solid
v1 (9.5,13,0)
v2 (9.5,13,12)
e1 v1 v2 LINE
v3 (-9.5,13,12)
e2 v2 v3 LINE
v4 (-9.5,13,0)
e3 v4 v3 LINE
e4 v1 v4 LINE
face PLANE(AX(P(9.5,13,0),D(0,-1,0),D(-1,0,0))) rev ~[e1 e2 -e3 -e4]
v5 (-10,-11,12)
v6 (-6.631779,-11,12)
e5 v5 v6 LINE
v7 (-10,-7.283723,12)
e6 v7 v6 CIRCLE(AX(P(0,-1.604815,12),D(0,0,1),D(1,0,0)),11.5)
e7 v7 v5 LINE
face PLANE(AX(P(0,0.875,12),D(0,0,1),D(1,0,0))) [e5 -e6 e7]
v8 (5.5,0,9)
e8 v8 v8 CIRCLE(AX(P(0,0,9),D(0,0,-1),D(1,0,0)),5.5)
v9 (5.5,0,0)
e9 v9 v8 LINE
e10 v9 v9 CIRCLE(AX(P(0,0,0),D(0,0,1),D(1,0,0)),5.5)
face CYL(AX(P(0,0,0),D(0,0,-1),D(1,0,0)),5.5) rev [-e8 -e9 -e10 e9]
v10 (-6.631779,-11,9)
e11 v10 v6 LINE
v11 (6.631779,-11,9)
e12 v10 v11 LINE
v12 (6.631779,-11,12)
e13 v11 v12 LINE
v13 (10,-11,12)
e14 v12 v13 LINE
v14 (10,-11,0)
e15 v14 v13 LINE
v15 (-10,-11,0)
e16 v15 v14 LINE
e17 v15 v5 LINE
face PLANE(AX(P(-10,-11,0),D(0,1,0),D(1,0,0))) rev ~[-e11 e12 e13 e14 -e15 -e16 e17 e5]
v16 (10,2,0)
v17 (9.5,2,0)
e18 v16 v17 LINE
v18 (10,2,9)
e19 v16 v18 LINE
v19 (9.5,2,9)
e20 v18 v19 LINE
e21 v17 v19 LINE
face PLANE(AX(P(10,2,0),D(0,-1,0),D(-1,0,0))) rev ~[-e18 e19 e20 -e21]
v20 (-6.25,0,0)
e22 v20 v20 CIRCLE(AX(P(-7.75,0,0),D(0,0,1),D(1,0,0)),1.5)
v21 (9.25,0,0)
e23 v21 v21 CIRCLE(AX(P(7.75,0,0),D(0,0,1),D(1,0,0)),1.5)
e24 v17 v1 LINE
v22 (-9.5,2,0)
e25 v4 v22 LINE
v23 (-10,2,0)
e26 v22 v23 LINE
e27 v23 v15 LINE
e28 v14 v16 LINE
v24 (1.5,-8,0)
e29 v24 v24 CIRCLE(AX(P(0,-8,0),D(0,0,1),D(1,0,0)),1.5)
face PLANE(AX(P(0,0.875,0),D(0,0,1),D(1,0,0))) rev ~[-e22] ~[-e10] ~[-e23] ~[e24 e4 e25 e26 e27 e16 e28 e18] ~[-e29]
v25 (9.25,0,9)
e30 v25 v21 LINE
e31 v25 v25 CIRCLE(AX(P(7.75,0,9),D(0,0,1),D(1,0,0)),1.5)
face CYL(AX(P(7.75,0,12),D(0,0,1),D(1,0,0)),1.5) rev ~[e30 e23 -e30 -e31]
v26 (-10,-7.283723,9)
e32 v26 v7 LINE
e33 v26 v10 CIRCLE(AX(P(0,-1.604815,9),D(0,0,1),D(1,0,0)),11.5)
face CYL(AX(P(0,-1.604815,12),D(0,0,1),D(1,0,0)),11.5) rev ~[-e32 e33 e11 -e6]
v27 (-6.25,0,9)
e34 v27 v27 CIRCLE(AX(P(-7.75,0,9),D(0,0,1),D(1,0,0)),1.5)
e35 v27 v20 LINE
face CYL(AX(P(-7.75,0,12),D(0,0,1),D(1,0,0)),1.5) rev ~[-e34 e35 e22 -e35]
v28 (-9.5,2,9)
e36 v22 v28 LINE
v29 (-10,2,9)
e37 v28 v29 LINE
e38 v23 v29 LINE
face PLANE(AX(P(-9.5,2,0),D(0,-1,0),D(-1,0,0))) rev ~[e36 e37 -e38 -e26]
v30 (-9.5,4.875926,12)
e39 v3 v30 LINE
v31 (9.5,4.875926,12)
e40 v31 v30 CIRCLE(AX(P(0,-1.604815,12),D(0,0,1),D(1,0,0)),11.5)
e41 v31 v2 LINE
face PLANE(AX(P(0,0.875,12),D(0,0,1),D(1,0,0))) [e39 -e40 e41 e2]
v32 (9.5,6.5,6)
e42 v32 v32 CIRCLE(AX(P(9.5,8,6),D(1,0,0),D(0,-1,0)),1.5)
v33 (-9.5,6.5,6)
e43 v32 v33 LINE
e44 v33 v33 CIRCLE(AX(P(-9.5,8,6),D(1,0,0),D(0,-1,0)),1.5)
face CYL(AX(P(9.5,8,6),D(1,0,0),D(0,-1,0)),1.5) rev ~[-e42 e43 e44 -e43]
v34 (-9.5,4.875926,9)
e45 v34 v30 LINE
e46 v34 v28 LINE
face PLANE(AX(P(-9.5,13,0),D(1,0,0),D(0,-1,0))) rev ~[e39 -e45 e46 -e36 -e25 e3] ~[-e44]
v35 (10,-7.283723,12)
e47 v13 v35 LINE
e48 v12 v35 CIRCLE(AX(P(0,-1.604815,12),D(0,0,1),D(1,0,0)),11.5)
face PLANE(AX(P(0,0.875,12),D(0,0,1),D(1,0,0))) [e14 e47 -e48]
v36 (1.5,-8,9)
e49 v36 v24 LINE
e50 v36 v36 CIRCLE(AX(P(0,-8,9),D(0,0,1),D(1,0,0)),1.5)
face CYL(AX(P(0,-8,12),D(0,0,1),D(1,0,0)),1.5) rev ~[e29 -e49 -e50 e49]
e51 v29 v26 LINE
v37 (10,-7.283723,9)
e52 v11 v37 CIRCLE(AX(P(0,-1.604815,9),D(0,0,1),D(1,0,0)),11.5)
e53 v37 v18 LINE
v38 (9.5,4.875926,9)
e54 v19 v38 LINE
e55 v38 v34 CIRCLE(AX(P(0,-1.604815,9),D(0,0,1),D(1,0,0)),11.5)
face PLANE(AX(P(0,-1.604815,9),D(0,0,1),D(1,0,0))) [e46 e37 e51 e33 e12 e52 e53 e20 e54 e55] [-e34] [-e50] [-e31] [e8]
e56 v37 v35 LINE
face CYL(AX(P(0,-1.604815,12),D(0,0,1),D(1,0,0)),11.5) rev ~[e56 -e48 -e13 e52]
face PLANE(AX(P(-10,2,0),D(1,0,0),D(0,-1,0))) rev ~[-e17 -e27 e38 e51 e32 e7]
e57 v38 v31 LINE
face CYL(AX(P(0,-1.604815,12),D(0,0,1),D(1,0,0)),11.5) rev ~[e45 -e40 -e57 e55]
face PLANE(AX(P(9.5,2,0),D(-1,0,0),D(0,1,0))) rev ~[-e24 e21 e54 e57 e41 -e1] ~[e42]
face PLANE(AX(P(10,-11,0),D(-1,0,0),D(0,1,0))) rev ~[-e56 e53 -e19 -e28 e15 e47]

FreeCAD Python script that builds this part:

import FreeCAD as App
import Part
import Sketcher

V = App.Vector
Q = App.Units.Quantity

doc = App.newDocument("Part")
body = doc.addObject("PartDesign::Body", "Body")

# Sketch on XY plane
sketch1 = doc.addObject("Sketcher::SketchObject", "Sketch")
body.addObject(sketch1)
sketch1.AttachmentSupport = (doc.XY_Plane, [""])
sketch1.MapMode = "FlatFace"
sketch1.addGeometry(Part.LineSegment(V(9.5, 2, 0), V(9.5, 13, 0)), False)
sketch1.addGeometry(Part.LineSegment(V(9.5, 13, 0), V(-9.5, 13, 0)), False)
sketch1.addGeometry(Part.LineSegment(V(-9.5, 13, 0), V(-9.5, 2, 0)), False)
sketch1.addGeometry(Part.LineSegment(V(-9.5, 2, 0), V(-10, 2, 0)), False)
sketch1.addGeometry(Part.LineSegment(V(-10, 2, 0), V(-10, -11, 0)), False)
sketch1.addGeometry(Part.LineSegment(V(-10, -11, 0), V(10, -11, 0)), False)
sketch1.addGeometry(Part.LineSegment(V(10, -11, 0), V(10, 2, 0)), False)
sketch1.addGeometry(Part.LineSegment(V(10, 2, 0), V(9.5, 2, 0)), False)
sketch1.addGeometry(Part.Circle(V(0, 0, 0), V(0, 0, 1), 5.5), False)
sketch1.addConstraint(Sketcher.Constraint("Coincident", 0, 2, 1, 1))
sketch1.addConstraint(Sketcher.Constraint("Coincident", 1, 2, 2, 1))
sketch1.addConstraint(Sketcher.Constraint("Coincident", 2, 2, 3, 1))
sketch1.addConstraint(Sketcher.Constraint("Coincident", 3, 2, 4, 1))
sketch1.addConstraint(Sketcher.Constraint("Coincident", 4, 2, 5, 1))
sketch1.addConstraint(Sketcher.Constraint("Coincident", 5, 2, 6, 1))
sketch1.addConstraint(Sketcher.Constraint("Coincident", 6, 2, 7, 1))
sketch1.addConstraint(Sketcher.Constraint("Coincident", 7, 2, 0, 1))
sketch1.addConstraint(Sketcher.Constraint("Vertical", 0))
sketch1.addConstraint(Sketcher.Constraint("Horizontal", 1))
sketch1.addConstraint(Sketcher.Constraint("Vertical", 2))
sketch1.addConstraint(Sketcher.Constraint("Horizontal", 3))
sketch1.addConstraint(Sketcher.Constraint("Vertical", 4))
sketch1.addConstraint(Sketcher.Constraint("Horizontal", 5))
sketch1.addConstraint(Sketcher.Constraint("Vertical", 6))
sketch1.addConstraint(Sketcher.Constraint("Horizontal", 7))
sketch1.addConstraint(Sketcher.Constraint("Coincident", 8, 3, -1, 1))
sketch1.addConstraint(Sketcher.Constraint("Symmetric", 3, 2, 6, 2, -2))
sketch1.addConstraint(Sketcher.Constraint("Equal", 3, 7))
sketch1.addConstraint(Sketcher.Constraint("Diameter", 8, Q("11 mm")))
sketch1.addConstraint(Sketcher.Constraint("DistanceX", 1, 2, 1, 1, Q("19 mm")))
sketch1.addConstraint(Sketcher.Constraint("DistanceX", 5, 1, 5, 2, Q("20 mm")))
sketch1.addConstraint(Sketcher.Constraint("DistanceY", 0, 1, 0, 2, Q("11 mm")))
sketch1.addConstraint(Sketcher.Constraint("DistanceY", 4, 2, 4, 1, Q("13 mm")))
sketch1.addConstraint(Sketcher.Constraint("DistanceY", -1, 1, 0, 2, Q("13 mm")))
pad1 = doc.addObject("PartDesign::Pad", "Pad")
body.addObject(pad1)
pad1.Profile = sketch1
pad1.Length = 12

# Sketch on XY plane
sketch2 = doc.addObject("Sketcher::SketchObject", "Sketch001")
body.addObject(sketch2)
sketch2.AttachmentSupport = (doc.XY_Plane, [""])
sketch2.MapMode = "FlatFace"
sketch2.AttachmentOffset = App.Placement(V(0, 0, 12), App.Rotation())
sketch2.addGeometry(Part.Circle(V(7.75, 0, 0), V(0, 0, 1), 1.5), False)
sketch2.addGeometry(Part.Circle(V(-7.75, 0, 0), V(0, 0, 1), 1.5), False)
sketch2.addGeometry(Part.Circle(V(0, -8, 0), V(0, 0, 1), 1.5), False)
sketch2.addConstraint(Sketcher.Constraint("Equal", 0, 1))
sketch2.addConstraint(Sketcher.Constraint("Equal", 1, 2))
sketch2.addConstraint(Sketcher.Constraint("Symmetric", 0, 3, 1, 3, -1, 1))
sketch2.addConstraint(Sketcher.Constraint("PointOnObject", 0, 3, -1))
sketch2.addConstraint(Sketcher.Constraint("PointOnObject", 2, 3, -2))
sketch2.addConstraint(Sketcher.Constraint("Diameter", 0, Q("3 mm")))
sketch2.addConstraint(Sketcher.Constraint("DistanceY", 2, 3, -1, 1, Q("8 mm")))
sketch2.addConstraint(Sketcher.Constraint("DistanceX", 1, 3, 0, 3, Q("15.5 mm")))
pocket1 = doc.addObject("PartDesign::Pocket", "Pocket")
body.addObject(pocket1)
pocket1.Profile = sketch2
pocket1.Length = 12

# Sketch on YZ plane
sketch3 = doc.addObject("Sketcher::SketchObject", "Sketch002")
body.addObject(sketch3)
sketch3.AttachmentSupport = (doc.YZ_Plane, [""])
sketch3.MapMode = "FlatFace"
sketch3.AttachmentOffset = App.Placement(V(0, 0, 9.5), App.Rotation())
sketch3.addGeometry(Part.Circle(V(8, 6, 0), V(0, 0, 1), 1.5), False)
sketch3.addConstraint(Sketcher.Constraint("Diameter", 0, Q("3 mm")))
sketch3.addConstraint(Sketcher.Constraint("DistanceX", -1, 1, 0, 3, Q("8 mm")))
sketch3.addConstraint(Sketcher.Constraint("DistanceY", -1, 1, 0, 3, Q("6 mm")))
pocket2 = doc.addObject("PartDesign::Pocket", "Pocket001")
body.addObject(pocket2)
pocket2.Profile = sketch3
pocket2.Length = 22

# Sketch on XY plane
sketch4 = doc.addObject("Sketcher::SketchObject", "Sketch003")
body.addObject(sketch4)
sketch4.AttachmentSupport = (doc.XY_Plane, [""])
sketch4.MapMode = "FlatFace"
sketch4.AttachmentOffset = App.Placement(V(0, 0, 12), App.Rotation())
sketch4.addGeometry(Part.Circle(V(0, -1.604815, 0), V(0, 0, 1), 11.5), False)
sketch4.addConstraint(Sketcher.Constraint("PointOnObject", 0, 3, -2))
sketch4.addConstraint(Sketcher.Constraint("Diameter", 0, Q("23 mm")))
sketch4.addConstraint(Sketcher.Constraint("DistanceY", 0, 3, -1, 1, Q("1.604815 mm")))
pocket3 = doc.addObject("PartDesign::Pocket", "Pocket002")
body.addObject(pocket3)
pocket3.Profile = sketch4
pocket3.Length = 3

doc.recompute()
